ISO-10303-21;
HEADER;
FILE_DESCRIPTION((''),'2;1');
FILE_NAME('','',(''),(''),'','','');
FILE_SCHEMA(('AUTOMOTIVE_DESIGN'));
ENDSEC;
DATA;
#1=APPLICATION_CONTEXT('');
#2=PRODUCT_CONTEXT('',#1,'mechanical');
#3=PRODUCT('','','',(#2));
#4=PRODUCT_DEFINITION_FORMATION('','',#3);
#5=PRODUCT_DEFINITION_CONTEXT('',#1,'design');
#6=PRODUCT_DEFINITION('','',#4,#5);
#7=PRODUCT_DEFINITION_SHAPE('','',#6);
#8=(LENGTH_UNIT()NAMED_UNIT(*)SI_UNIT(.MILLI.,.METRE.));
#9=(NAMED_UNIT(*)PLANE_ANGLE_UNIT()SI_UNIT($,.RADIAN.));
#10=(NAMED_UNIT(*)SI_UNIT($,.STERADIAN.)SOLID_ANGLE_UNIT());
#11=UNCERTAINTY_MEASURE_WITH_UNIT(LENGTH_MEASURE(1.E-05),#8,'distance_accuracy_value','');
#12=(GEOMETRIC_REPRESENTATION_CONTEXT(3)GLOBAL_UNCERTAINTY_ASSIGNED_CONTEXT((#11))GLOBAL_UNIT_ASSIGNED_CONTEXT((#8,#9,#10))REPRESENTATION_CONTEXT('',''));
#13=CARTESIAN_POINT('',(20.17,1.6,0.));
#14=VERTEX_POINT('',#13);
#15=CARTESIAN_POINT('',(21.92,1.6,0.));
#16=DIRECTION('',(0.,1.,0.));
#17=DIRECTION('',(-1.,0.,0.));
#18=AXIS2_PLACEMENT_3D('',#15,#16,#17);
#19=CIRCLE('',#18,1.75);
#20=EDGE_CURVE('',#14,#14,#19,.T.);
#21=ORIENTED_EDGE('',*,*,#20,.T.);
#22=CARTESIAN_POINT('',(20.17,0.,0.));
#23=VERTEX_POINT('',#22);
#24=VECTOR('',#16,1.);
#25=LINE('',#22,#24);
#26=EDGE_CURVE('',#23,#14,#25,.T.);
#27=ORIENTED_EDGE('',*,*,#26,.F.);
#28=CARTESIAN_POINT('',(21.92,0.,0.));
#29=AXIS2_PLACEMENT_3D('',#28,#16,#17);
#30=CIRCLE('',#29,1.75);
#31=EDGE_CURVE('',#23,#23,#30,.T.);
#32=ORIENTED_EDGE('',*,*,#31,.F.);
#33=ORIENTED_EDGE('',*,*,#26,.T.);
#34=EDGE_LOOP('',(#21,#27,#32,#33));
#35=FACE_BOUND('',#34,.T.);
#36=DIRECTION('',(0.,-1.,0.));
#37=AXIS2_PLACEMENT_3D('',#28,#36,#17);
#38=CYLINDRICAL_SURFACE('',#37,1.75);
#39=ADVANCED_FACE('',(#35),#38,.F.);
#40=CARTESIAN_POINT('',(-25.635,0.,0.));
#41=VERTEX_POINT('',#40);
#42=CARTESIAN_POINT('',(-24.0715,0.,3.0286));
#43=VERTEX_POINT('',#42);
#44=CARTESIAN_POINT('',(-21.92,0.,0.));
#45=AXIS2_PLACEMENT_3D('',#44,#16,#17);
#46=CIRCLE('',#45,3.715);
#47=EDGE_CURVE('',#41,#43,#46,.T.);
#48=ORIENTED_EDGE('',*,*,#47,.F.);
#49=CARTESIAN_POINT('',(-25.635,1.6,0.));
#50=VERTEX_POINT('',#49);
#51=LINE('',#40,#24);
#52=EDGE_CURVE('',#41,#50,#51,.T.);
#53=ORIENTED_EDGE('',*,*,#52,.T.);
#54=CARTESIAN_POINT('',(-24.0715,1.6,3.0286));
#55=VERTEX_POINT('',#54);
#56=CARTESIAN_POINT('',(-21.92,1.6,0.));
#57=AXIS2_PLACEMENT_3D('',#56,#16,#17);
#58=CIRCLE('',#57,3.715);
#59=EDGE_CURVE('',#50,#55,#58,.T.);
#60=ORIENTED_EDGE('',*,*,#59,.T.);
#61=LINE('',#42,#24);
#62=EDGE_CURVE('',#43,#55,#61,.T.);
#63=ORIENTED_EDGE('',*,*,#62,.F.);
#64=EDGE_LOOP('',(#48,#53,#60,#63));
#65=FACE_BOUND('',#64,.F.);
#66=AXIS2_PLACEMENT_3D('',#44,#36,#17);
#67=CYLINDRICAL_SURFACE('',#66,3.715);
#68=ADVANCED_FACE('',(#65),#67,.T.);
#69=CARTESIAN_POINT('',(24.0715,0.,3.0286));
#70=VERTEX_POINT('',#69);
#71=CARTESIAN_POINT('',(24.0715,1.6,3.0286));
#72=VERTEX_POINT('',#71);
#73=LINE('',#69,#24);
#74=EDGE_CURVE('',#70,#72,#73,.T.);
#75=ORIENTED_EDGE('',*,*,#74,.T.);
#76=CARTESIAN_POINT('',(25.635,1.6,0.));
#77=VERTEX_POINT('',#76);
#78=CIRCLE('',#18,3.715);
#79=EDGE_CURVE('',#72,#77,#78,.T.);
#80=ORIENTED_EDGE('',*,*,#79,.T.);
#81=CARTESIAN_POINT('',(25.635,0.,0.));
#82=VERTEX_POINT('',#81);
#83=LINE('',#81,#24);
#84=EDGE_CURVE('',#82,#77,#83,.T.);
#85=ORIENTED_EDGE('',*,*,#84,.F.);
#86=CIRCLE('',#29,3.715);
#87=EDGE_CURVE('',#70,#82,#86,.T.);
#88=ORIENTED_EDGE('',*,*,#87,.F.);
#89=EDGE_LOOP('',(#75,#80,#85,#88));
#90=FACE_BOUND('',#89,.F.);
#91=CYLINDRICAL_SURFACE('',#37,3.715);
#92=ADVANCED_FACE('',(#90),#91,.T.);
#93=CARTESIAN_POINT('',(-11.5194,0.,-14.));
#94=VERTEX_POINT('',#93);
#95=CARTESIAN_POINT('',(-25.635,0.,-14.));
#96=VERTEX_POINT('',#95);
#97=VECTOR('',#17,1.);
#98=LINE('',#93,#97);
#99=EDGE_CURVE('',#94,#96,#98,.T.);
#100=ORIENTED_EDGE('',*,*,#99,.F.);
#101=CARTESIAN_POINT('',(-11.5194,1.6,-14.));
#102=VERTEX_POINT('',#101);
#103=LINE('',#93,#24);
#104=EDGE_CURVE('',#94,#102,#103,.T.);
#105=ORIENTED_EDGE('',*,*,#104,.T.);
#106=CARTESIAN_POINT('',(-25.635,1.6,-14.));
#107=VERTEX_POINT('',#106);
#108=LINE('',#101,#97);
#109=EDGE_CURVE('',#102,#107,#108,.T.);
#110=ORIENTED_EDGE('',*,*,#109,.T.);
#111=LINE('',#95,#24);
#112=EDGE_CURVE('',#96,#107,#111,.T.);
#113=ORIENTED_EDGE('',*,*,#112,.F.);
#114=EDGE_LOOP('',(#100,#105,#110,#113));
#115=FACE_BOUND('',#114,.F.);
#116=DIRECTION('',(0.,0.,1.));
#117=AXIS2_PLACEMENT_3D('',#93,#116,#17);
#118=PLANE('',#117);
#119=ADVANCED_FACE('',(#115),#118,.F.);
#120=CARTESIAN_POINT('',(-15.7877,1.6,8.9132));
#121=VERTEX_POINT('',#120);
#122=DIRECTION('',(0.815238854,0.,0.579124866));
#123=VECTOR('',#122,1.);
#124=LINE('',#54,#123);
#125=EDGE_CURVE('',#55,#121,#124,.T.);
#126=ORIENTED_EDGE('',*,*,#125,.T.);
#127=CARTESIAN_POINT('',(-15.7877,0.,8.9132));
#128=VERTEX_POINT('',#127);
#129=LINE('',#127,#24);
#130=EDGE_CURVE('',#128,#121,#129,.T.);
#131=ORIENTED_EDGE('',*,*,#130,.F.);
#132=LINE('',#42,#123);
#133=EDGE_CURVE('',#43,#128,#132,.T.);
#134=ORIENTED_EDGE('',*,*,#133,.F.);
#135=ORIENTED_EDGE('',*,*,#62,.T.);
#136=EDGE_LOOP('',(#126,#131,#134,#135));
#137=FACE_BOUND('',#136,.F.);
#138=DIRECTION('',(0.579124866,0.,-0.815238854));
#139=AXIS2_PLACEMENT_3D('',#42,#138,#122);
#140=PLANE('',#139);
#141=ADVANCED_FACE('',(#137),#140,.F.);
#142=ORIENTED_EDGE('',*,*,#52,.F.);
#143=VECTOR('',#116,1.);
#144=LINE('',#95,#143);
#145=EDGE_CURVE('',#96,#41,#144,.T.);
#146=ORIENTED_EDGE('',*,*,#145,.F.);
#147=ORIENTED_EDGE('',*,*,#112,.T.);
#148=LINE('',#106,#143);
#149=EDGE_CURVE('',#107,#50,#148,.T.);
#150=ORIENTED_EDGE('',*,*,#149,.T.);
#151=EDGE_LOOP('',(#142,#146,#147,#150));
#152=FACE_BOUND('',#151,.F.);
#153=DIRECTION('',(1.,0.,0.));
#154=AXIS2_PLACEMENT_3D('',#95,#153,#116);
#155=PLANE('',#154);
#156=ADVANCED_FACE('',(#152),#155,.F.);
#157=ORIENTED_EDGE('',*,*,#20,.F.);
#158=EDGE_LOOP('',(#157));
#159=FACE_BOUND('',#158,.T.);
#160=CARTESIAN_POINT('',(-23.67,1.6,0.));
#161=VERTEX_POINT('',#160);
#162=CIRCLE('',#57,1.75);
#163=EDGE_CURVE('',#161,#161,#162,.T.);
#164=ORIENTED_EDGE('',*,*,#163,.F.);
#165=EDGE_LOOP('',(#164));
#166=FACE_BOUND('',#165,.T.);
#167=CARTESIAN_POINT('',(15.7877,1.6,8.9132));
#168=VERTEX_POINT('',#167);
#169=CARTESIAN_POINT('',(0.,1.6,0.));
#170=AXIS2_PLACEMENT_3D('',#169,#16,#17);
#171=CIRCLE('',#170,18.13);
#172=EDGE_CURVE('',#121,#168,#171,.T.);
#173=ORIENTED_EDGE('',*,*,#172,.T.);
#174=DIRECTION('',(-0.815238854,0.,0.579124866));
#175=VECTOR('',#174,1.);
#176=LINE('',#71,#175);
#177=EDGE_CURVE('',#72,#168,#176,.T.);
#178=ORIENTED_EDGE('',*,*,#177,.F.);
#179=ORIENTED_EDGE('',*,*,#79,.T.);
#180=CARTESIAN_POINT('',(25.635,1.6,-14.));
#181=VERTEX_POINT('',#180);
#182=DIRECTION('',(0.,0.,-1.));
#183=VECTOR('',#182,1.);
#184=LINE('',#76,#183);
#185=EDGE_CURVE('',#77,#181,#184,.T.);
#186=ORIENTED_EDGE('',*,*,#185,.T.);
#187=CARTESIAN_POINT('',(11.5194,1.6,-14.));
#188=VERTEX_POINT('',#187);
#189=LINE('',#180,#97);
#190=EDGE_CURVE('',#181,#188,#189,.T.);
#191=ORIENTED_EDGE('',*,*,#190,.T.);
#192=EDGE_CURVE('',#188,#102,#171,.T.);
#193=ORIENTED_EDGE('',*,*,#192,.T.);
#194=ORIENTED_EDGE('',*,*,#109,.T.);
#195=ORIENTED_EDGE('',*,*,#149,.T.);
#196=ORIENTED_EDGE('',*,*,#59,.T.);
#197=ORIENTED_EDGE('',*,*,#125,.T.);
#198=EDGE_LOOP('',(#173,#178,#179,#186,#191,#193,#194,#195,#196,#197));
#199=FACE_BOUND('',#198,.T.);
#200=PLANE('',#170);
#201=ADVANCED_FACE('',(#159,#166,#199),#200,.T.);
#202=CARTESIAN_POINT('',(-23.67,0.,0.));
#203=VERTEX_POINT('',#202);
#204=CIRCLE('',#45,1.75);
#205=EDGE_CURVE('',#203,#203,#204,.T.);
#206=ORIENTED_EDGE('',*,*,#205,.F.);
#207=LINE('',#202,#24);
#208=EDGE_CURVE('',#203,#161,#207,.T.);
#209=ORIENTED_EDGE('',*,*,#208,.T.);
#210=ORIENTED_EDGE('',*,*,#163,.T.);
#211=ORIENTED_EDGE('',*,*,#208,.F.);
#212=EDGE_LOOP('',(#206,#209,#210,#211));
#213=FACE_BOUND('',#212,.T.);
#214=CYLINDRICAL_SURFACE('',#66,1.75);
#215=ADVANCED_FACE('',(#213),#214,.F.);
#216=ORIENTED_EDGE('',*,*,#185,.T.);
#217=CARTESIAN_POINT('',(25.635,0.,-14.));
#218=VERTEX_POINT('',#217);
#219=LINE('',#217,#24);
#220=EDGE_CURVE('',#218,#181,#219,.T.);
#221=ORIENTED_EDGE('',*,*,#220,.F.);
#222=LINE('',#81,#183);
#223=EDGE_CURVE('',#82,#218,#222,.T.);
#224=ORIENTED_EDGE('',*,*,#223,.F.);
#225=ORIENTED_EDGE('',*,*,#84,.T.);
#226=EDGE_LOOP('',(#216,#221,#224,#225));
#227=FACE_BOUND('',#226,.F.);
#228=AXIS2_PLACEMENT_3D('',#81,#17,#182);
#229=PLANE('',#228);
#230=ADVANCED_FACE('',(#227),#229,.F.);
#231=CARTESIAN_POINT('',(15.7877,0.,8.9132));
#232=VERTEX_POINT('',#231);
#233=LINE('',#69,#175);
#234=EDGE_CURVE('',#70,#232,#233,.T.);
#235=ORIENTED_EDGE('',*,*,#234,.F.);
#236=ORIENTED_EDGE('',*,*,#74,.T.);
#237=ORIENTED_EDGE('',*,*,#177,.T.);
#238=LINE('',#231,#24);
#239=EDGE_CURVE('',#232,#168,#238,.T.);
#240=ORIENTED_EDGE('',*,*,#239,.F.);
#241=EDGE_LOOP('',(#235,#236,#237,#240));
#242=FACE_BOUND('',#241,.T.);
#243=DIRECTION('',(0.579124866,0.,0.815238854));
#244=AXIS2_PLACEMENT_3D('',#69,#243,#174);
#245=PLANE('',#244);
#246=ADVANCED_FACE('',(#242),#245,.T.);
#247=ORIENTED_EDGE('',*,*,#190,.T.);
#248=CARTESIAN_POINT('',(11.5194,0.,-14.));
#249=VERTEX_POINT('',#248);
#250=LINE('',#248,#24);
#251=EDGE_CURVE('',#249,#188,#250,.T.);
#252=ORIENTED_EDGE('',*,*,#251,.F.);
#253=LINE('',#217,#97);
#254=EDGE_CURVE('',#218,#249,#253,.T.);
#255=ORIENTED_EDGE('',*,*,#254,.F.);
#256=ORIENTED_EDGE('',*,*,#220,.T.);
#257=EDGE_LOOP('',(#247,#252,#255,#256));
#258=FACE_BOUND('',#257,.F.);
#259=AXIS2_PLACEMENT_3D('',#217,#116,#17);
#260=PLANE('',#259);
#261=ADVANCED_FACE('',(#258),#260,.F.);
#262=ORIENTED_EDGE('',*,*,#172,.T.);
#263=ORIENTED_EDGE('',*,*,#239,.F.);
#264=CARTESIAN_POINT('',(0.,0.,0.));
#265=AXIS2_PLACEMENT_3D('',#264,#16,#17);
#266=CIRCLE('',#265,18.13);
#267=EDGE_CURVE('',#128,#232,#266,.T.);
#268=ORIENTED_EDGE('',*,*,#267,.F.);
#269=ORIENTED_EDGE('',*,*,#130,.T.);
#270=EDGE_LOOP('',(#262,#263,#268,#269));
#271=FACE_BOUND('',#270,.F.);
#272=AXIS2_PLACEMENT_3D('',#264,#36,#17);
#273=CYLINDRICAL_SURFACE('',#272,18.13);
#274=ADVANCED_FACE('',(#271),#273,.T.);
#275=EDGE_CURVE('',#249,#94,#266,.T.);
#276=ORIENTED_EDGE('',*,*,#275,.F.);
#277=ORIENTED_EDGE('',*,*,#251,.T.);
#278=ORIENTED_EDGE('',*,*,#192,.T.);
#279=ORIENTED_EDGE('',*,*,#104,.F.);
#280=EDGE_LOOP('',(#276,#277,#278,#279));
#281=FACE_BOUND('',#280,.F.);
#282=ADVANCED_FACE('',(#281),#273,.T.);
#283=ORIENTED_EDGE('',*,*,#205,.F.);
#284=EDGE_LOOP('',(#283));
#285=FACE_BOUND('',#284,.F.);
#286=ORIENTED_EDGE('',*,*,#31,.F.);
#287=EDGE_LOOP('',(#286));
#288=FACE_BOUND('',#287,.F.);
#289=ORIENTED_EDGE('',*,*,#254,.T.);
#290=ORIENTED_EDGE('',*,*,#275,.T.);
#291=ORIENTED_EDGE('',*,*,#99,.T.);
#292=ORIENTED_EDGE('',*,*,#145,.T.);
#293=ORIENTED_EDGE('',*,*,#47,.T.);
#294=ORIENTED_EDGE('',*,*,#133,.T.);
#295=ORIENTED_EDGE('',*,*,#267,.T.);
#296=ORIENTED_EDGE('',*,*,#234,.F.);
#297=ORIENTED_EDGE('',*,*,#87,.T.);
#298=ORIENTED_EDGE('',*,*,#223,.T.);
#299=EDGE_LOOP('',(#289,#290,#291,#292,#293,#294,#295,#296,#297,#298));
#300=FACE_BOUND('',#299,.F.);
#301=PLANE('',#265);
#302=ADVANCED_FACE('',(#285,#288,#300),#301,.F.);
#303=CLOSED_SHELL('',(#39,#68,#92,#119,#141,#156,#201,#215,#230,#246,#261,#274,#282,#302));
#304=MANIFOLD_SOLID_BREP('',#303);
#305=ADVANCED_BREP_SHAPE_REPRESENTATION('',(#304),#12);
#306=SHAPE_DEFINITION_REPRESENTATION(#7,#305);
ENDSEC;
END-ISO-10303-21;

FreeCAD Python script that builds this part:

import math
import FreeCAD as App
import Part
import Sketcher
Q = App.Units.Quantity

doc = App.newDocument("Part")
params = doc.addObject("Spreadsheet::Sheet", "Params")
for row, (alias, value) in enumerate([
    ("sketch1_diameter", "3.5 mm"),
    ("sketch1_height", "14 mm"),
    ("sketch1_radius", "18.13 mm"),
    ("pad1_length", "1.6 mm"),
], start=1):
    params.set(f"A{row}", alias)
    params.set(f"B{row}", "=" + value)
    params.setAlias(f"B{row}", alias)

body = doc.addObject("PartDesign::Body", "Body")

sketch1 = body.newObject("Sketcher::SketchObject", "Sketch")
sketch1.AttachmentSupport = (doc.getObject("XZ_Plane"), [""])
sketch1.MapMode = "FlatFace"
sketch1.addGeometry([
    Part.ArcOfCircle(Part.Circle(App.Vector(0, 0, 0), App.Vector(0, 0, 1), 18.1), math.radians(-129), math.radians(-51)),
    Part.LineSegment(App.Vector(-11.5, -14, 0), App.Vector(-25.6, -14, 0)),
    Part.LineSegment(App.Vector(-25.6, -14, 0), App.Vector(-25.6, 0, 0)),
    Part.ArcOfCircle(Part.Circle(App.Vector(-21.9, 0, 0), App.Vector(0, 0, 1), 3.7), math.radians(125), math.radians(180)),
    Part.LineSegment(App.Vector(-24.1, 3, 0), App.Vector(-15.8, 8.9, 0)),
    Part.ArcOfCircle(Part.Circle(App.Vector(0, 0, 0), App.Vector(0, 0, 1), 18.1), math.radians(29), math.radians(151)),
    Part.LineSegment(App.Vector(15.8, 8.9, 0), App.Vector(24.1, 3, 0)),
    Part.ArcOfCircle(Part.Circle(App.Vector(21.9, 0, 0), App.Vector(0, 0, 1), 3.7), math.radians(0), math.radians(55)),
    Part.LineSegment(App.Vector(25.6, 0, 0), App.Vector(25.6, -14, 0)),
    Part.LineSegment(App.Vector(25.6, -14, 0), App.Vector(11.5, -14, 0)),
    Part.Circle(App.Vector(-21.9, 0, 0), App.Vector(0, 0, 1), 1.8),
    Part.Circle(App.Vector(21.9, 0, 0), App.Vector(0, 0, 1), 1.8),
], False)
sketch1.addConstraint([
    Sketcher.Constraint("Coincident", 0, 1, 1, 1),
    Sketcher.Constraint("Coincident", 1, 2, 2, 1),
    Sketcher.Constraint("Tangent", 2, 2, 3, 2),
    Sketcher.Constraint("Tangent", 3, 1, 4, 1),
    Sketcher.Constraint("Coincident", 4, 2, 5, 2),
    Sketcher.Constraint("Coincident", 5, 1, 6, 1),
    Sketcher.Constraint("Tangent", 6, 2, 7, 2),
    Sketcher.Constraint("Tangent", 7, 1, 8, 1),
    Sketcher.Constraint("Coincident", 8, 2, 9, 1),
    Sketcher.Constraint("Coincident", 9, 2, 0, 2),
    Sketcher.Constraint("Horizontal", 1),
    Sketcher.Constraint("Vertical", 2),
    Sketcher.Constraint("Vertical", 8),
    Sketcher.Constraint("Horizontal", 9),
    Sketcher.Constraint("Coincident", 0, 3, -1, 1),
    Sketcher.Constraint("Coincident", 5, 3, -1, 1),
    Sketcher.Constraint("Coincident", 10, 3, 3, 3),
    Sketcher.Constraint("Coincident", 11, 3, 7, 3),
    Sketcher.Constraint("Equal", 0, 5),
    Sketcher.Constraint("Equal", 3, 7),
    Sketcher.Constraint("Equal", 10, 11),
    Sketcher.Constraint("Symmetric", 3, 3, 7, 3, -1, 1),
    Sketcher.Constraint("Symmetric", 3, 1, 6, 2, -2),
    Sketcher.Constraint("Horizontal", 1, 2, 8, 2),
    Sketcher.Constraint("Diameter", 10, 3.5),
    Sketcher.Constraint("DistanceY", 2, 1, 2, 2, 14.0),
    Sketcher.Constraint("Radius", 0, 18.13),
    Sketcher.Constraint("Angle", 4, Q("35.389 deg")),
    Sketcher.Constraint("DistanceX", 3, 3, -1, 1, 21.92),
    Sketcher.Constraint("Radius", 3, 3.715),
])
sketch1.setExpression("Constraints[24]", "Params.sketch1_diameter")
sketch1.setExpression("Constraints[25]", "Params.sketch1_height")
sketch1.setExpression("Constraints[26]", "Params.sketch1_radius")
pad1 = body.newObject("PartDesign::Pad", "Pad")
pad1.Profile = sketch1
pad1.setExpression("Length", "Params.pad1_length")
pad1.Reversed = True

doc.recompute()
